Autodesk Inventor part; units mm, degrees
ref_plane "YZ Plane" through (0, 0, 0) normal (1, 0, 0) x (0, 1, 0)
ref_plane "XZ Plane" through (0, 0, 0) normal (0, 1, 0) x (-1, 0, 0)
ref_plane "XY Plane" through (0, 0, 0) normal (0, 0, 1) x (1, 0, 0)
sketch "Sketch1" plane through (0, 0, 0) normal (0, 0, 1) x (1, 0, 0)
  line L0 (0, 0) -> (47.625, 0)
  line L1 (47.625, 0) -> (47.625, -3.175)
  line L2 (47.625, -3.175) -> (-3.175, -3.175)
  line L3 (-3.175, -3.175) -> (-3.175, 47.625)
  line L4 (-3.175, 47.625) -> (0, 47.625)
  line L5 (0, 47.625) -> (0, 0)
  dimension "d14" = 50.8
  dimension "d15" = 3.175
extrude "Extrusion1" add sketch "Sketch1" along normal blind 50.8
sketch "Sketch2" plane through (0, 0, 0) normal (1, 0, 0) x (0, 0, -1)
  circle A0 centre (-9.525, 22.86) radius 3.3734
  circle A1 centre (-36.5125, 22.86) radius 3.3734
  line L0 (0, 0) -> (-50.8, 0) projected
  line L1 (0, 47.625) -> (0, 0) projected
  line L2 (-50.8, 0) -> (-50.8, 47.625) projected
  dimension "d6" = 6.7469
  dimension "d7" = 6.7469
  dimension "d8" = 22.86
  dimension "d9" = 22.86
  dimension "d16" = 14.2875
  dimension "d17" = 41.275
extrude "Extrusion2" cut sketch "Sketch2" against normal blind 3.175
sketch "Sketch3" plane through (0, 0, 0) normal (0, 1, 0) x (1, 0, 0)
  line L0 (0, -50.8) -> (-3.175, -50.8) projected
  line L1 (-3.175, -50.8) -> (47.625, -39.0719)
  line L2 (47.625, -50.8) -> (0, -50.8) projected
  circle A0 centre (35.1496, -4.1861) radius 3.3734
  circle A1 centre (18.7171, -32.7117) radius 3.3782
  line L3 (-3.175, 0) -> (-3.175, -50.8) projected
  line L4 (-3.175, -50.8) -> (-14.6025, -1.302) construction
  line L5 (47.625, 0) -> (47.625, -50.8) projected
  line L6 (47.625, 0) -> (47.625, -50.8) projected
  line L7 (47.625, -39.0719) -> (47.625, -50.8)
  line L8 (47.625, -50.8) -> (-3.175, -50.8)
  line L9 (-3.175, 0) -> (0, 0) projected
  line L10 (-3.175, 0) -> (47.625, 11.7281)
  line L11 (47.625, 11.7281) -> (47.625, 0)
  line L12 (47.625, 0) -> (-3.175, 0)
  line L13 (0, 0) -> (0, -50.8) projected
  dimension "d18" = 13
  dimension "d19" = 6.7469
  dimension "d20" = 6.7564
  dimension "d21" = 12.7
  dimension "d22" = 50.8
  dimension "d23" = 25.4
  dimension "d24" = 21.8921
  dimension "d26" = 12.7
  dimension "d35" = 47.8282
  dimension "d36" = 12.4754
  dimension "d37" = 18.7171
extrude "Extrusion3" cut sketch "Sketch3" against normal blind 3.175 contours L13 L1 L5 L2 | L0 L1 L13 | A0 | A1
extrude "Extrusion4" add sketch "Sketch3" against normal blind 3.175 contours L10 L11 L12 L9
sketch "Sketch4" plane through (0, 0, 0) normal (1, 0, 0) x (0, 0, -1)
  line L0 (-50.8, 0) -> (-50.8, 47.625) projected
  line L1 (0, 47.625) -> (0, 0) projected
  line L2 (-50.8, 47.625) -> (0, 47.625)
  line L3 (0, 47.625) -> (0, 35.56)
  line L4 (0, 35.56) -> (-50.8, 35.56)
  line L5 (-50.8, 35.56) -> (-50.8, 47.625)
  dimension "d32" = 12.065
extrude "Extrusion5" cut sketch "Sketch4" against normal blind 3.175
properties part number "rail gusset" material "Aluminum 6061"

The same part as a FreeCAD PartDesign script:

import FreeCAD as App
import Part
import Sketcher

V = App.Vector
Q = App.Units.Quantity


def add_polygon(sketch, points):
    """Adds a closed chain of lines whose ends are joined by coincident constraints."""
    first, n = sketch.GeometryCount, len(points)
    for a, b in zip(points, points[1:] + points[:1]):
        sketch.addGeometry(Part.LineSegment(App.Vector(*a, 0), App.Vector(*b, 0)), False)
    for i in range(n):
        sketch.addConstraint(Sketcher.Constraint("Coincident", first + i, 2, first + (i + 1) % n, 1))

doc = App.newDocument("Part")
body = doc.addObject("PartDesign::Body", "Body")

# Sketch on XY plane
sketch1 = body.newObject("Sketcher::SketchObject", "Sketch")
sketch1.AttachmentSupport = (doc.getObject("XY_Plane"), [""])
sketch1.MapMode = "FlatFace"
add_polygon(sketch1, [(47.6, 0), (0, 0), (0, 47.6), (-3.2, 47.6), (-3.2, -3.2), (47.6, -3.2)])  # lines 0-5
sketch1.addConstraint(Sketcher.Constraint("Horizontal", 0))
sketch1.addConstraint(Sketcher.Constraint("Vertical", 1))
sketch1.addConstraint(Sketcher.Constraint("Horizontal", 2))
sketch1.addConstraint(Sketcher.Constraint("Vertical", 3))
sketch1.addConstraint(Sketcher.Constraint("Horizontal", 4))
sketch1.addConstraint(Sketcher.Constraint("Vertical", 5))
sketch1.addConstraint(Sketcher.Constraint("Coincident", 0, 2, -1, 1))
sketch1.addConstraint(Sketcher.Constraint("Equal", 0, 1))
sketch1.addConstraint(Sketcher.Constraint("Equal", 4, 3))
sketch1.addConstraint(Sketcher.Constraint("DistanceX", 4, 1, 4, 2, Q("2 in")))
sketch1.addConstraint(Sketcher.Constraint("DistanceX", 2, 2, 2, 1, Q("0.125 in")))
pad1 = body.newObject("PartDesign::Pad", "Pad")
pad1.Profile = sketch1
pad1.Length = Q("2 in")

# Sketch on YZ plane
sketch2 = body.newObject("Sketcher::SketchObject", "Sketch001")
sketch2.AttachmentSupport = (doc.getObject("YZ_Plane"), [""])
sketch2.MapMode = "FlatFace"
sketch2.addGeometry(Part.Circle(V(22.9, 9.5, 0), V(0, 0, 1), 3.4), False)
sketch2.addGeometry(Part.Circle(V(22.9, 36.5, 0), V(0, 0, 1), 3.4), False)
sketch2.addConstraint(Sketcher.Constraint("Equal", 0, 1))
sketch2.addConstraint(Sketcher.Constraint("Vertical", 0, 3, 1, 3))
sketch2.addConstraint(Sketcher.Constraint("Diameter", 0, Q("0.265622 in")))
sketch2.addConstraint(Sketcher.Constraint("DistanceX", -1, 1, 0, 3, Q("0.9 in")))
sketch2.addConstraint(Sketcher.Constraint("DistanceY", -1, 1, 0, 3, Q("0.375 in")))
sketch2.addConstraint(Sketcher.Constraint("DistanceY", -1, 1, 1, 3, Q("1.4375 in")))
pocket1 = body.newObject("PartDesign::Pocket", "Pocket")
pocket1.Profile = sketch2
pocket1.Length = Q("0.125 in")

# Sketch on XZ plane
sketch3 = body.newObject("Sketcher::SketchObject", "Sketch002")
sketch3.AttachmentSupport = (doc.getObject("XZ_Plane"), [""])
sketch3.MapMode = "FlatFace"
add_polygon(sketch3, [(47.6, 39.1), (-3.2, 50.8), (47.6, 50.8)])  # lines 0-2
sketch3.addGeometry(Part.Circle(V(35.1, 4.2, 0), V(0, 0, 1), 3.4), False)  # 3
sketch3.addGeometry(Part.Circle(V(18.7, 32.7, 0), V(0, 0, 1), 3.4), False)  # 4
sketch3.addConstraint(Sketcher.Constraint("Horizontal", 1))
sketch3.addConstraint(Sketcher.Constraint("Vertical", 2))
sketch3.addConstraint(Sketcher.Constraint("DistanceX", 1, 1, 1, 2, Q("2 in")))
sketch3.addConstraint(Sketcher.Constraint("Diameter", 3, Q("0.265622 in")))
sketch3.addConstraint(Sketcher.Constraint("Diameter", 4, Q("0.266 in")))
sketch3.addConstraint(Sketcher.Constraint("DistanceY", -1, 1, 0, 2, Q("2 in")))
sketch3.addConstraint(Sketcher.Constraint("Angle", 0, Q("167 deg")))
sketch3.addConstraint(Sketcher.Constraint("DistanceX", -1, 1, 4, 3, Q("0.7369 in")))
sketch3.addConstraint(Sketcher.Constraint("DistanceX", 0, 2, 4, 3, Q("0.8619 in")))
sketch3.addConstraint(Sketcher.Constraint("DistanceX", 3, 3, 1, 2, 12.4754))
sketch3.addConstraint(Sketcher.Constraint("DistanceY", -1, 1, 3, 3, Q("0.1648 in")))
sketch3.addConstraint(Sketcher.Constraint("DistanceY", 4, 3, 2, 2, Q("0.2504 in")))
pocket2 = body.newObject("PartDesign::Pocket", "Pocket001")
pocket2.Profile = sketch3
pocket2.Length = Q("0.125 in")
pocket2.Reversed = True

# Sketch on XZ plane
sketch4 = body.newObject("Sketcher::SketchObject", "Sketch003")
sketch4.AttachmentSupport = (doc.getObject("XZ_Plane"), [""])
sketch4.MapMode = "FlatFace"
add_polygon(sketch4, [(48, -12), (-3, 0), (48, 0)])  # lines 0-2
sketch4.addConstraint(Sketcher.Constraint("Horizontal", 1))
sketch4.addConstraint(Sketcher.Constraint("Vertical", 2))
sketch4.addConstraint(Sketcher.Constraint("PointOnObject", 0, 2, -1))
sketch4.addConstraint(Sketcher.Constraint("DistanceX", 1, 1, 1, 2, Q("2 in")))
sketch4.addConstraint(Sketcher.Constraint("Angle", 0, Q("167 deg")))
sketch4.addConstraint(Sketcher.Constraint("DistanceX", 0, 2, -1, 1, Q("0.125 in")))
pad2 = body.newObject("PartDesign::Pad", "Pad001")
pad2.Profile = sketch4
pad2.Length = Q("0.125 in")

# Sketch on YZ plane
sketch5 = body.newObject("Sketcher::SketchObject", "Sketch004")
sketch5.AttachmentSupport = (doc.getObject("YZ_Plane"), [""])
sketch5.MapMode = "FlatFace"
add_polygon(sketch5, [(48, 51), (36, 51), (36, 0), (48, 0)])  # lines 0-3
sketch5.addConstraint(Sketcher.Constraint("Horizontal", 0))
sketch5.addConstraint(Sketcher.Constraint("Vertical", 1))
sketch5.addConstraint(Sketcher.Constraint("Horizontal", 2))
sketch5.addConstraint(Sketcher.Constraint("Vertical", 3))
sketch5.addConstraint(Sketcher.Constraint("PointOnObject", 1, 2, -1))
sketch5.addConstraint(Sketcher.Constraint("DistanceX", 0, 2, 0, 1, Q("0.475 in")))
sketch5.addConstraint(Sketcher.Constraint("DistanceY", 1, 2, 1, 1, Q("2 in")))
sketch5.addConstraint(Sketcher.Constraint("DistanceX", -1, 1, 0, 2, Q("1.4 in")))
pocket3 = body.newObject("PartDesign::Pocket", "Pocket002")
pocket3.Profile = sketch5
pocket3.Length = Q("0.125 in")

doc.recompute()
